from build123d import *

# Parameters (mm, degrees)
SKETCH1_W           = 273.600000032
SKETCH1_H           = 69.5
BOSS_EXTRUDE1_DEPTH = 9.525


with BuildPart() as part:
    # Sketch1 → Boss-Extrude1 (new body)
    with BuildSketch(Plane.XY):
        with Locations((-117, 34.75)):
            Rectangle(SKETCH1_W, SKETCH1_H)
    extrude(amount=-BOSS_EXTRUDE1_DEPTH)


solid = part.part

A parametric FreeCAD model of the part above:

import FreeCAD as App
import Part
import Sketcher
from FreeCAD import Vector
Q = App.Units.Quantity

doc = App.newDocument("Part")
body = doc.addObject("PartDesign::Body", "Body")

# Sketch on XY plane
sketch1 = body.newObject("Sketcher::SketchObject", "Sketch")
sketch1.AttachmentSupport = (doc.getObject("XY_Plane"), [""])
sketch1.MapMode = "FlatFace"
sketch1.addGeometry(Part.LineSegment(Vector(-254, 70, 0), Vector(-254, 0, 0)), False)
sketch1.addGeometry(Part.LineSegment(Vector(-254, 0, 0), Vector(20, 0, 0)), False)
sketch1.addGeometry(Part.LineSegment(Vector(20, 0, 0), Vector(20, 70, 0)), False)
sketch1.addGeometry(Part.LineSegment(Vector(20, 70, 0), Vector(-254, 70, 0)), False)
sketch1.addConstraint(Sketcher.Constraint("Coincident", 0, 2, 1, 1))
sketch1.addConstraint(Sketcher.Constraint("Coincident", 1, 2, 2, 1))
sketch1.addConstraint(Sketcher.Constraint("Coincident", 2, 2, 3, 1))
sketch1.addConstraint(Sketcher.Constraint("Coincident", 3, 2, 0, 1))
sketch1.addConstraint(Sketcher.Constraint("Vertical", 0))
sketch1.addConstraint(Sketcher.Constraint("Horizontal", 1))
sketch1.addConstraint(Sketcher.Constraint("Vertical", 2))
sketch1.addConstraint(Sketcher.Constraint("Horizontal", 3))
sketch1.addConstraint(Sketcher.Constraint("PointOnObject", 0, 2, -1))
sketch1.addConstraint(Sketcher.Constraint("DistanceX", 1, 1, 1, 2, Q("273.6 mm")))
sketch1.addConstraint(Sketcher.Constraint("DistanceY", 0, 2, 0, 1, Q("69.5 mm")))
sketch1.addConstraint(Sketcher.Constraint("DistanceX", 0, 2, -1, 1, Q("253.8 mm")))
pad1 = body.newObject("PartDesign::Pad", "Pad")
pad1.Profile = sketch1
pad1.Length = 9.525
pad1.Reversed = True

doc.recompute()
